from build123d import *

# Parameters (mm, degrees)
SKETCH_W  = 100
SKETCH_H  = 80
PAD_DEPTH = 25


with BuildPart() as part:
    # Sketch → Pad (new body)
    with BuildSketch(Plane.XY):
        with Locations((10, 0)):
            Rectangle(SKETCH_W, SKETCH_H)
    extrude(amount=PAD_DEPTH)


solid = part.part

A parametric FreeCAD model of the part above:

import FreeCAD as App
import Part
import Sketcher
Q = App.Units.Quantity

doc = App.newDocument("Part")
body = doc.addObject("PartDesign::Body", "Body")

# Sketch on XY plane
sketch1 = doc.addObject("Sketcher::SketchObject", "Sketch")
body.addObject(sketch1)
sketch1.AttachmentSupport = (doc.XY_Plane, [""])
sketch1.MapMode = "FlatFace"
sketch1.addGeometry([
    Part.LineSegment(App.Vector(-40, 40, 0), App.Vector(-40, -40, 0)),
    Part.LineSegment(App.Vector(-40, -40, 0), App.Vector(60, -40, 0)),
    Part.LineSegment(App.Vector(60, -40, 0), App.Vector(60, 40, 0)),
    Part.LineSegment(App.Vector(60, 40, 0), App.Vector(-40, 40, 0)),
], False)
sketch1.addConstraint([
    Sketcher.Constraint("Coincident", 0, 2, 1, 1),
    Sketcher.Constraint("Coincident", 1, 2, 2, 1),
    Sketcher.Constraint("Coincident", 2, 2, 3, 1),
    Sketcher.Constraint("Coincident", 3, 2, 0, 1),
    Sketcher.Constraint("Vertical", 0),
    Sketcher.Constraint("Horizontal", 1),
    Sketcher.Constraint("Vertical", 2),
    Sketcher.Constraint("Horizontal", 3),
    Sketcher.Constraint("DistanceX", 1, 1, 1, 2, Q("100 mm")),
    Sketcher.Constraint("DistanceY", 0, 2, 0, 1, Q("80 mm")),
    Sketcher.Constraint("DistanceX", 0, 2, -1, 1, Q("40 mm")),
    Sketcher.Constraint("DistanceY", 0, 2, -1, 1, Q("40 mm")),
])
pad1 = doc.addObject("PartDesign::Pad", "Pad")
body.addObject(pad1)
pad1.Profile = sketch1
pad1.Length = 25

doc.recompute()
